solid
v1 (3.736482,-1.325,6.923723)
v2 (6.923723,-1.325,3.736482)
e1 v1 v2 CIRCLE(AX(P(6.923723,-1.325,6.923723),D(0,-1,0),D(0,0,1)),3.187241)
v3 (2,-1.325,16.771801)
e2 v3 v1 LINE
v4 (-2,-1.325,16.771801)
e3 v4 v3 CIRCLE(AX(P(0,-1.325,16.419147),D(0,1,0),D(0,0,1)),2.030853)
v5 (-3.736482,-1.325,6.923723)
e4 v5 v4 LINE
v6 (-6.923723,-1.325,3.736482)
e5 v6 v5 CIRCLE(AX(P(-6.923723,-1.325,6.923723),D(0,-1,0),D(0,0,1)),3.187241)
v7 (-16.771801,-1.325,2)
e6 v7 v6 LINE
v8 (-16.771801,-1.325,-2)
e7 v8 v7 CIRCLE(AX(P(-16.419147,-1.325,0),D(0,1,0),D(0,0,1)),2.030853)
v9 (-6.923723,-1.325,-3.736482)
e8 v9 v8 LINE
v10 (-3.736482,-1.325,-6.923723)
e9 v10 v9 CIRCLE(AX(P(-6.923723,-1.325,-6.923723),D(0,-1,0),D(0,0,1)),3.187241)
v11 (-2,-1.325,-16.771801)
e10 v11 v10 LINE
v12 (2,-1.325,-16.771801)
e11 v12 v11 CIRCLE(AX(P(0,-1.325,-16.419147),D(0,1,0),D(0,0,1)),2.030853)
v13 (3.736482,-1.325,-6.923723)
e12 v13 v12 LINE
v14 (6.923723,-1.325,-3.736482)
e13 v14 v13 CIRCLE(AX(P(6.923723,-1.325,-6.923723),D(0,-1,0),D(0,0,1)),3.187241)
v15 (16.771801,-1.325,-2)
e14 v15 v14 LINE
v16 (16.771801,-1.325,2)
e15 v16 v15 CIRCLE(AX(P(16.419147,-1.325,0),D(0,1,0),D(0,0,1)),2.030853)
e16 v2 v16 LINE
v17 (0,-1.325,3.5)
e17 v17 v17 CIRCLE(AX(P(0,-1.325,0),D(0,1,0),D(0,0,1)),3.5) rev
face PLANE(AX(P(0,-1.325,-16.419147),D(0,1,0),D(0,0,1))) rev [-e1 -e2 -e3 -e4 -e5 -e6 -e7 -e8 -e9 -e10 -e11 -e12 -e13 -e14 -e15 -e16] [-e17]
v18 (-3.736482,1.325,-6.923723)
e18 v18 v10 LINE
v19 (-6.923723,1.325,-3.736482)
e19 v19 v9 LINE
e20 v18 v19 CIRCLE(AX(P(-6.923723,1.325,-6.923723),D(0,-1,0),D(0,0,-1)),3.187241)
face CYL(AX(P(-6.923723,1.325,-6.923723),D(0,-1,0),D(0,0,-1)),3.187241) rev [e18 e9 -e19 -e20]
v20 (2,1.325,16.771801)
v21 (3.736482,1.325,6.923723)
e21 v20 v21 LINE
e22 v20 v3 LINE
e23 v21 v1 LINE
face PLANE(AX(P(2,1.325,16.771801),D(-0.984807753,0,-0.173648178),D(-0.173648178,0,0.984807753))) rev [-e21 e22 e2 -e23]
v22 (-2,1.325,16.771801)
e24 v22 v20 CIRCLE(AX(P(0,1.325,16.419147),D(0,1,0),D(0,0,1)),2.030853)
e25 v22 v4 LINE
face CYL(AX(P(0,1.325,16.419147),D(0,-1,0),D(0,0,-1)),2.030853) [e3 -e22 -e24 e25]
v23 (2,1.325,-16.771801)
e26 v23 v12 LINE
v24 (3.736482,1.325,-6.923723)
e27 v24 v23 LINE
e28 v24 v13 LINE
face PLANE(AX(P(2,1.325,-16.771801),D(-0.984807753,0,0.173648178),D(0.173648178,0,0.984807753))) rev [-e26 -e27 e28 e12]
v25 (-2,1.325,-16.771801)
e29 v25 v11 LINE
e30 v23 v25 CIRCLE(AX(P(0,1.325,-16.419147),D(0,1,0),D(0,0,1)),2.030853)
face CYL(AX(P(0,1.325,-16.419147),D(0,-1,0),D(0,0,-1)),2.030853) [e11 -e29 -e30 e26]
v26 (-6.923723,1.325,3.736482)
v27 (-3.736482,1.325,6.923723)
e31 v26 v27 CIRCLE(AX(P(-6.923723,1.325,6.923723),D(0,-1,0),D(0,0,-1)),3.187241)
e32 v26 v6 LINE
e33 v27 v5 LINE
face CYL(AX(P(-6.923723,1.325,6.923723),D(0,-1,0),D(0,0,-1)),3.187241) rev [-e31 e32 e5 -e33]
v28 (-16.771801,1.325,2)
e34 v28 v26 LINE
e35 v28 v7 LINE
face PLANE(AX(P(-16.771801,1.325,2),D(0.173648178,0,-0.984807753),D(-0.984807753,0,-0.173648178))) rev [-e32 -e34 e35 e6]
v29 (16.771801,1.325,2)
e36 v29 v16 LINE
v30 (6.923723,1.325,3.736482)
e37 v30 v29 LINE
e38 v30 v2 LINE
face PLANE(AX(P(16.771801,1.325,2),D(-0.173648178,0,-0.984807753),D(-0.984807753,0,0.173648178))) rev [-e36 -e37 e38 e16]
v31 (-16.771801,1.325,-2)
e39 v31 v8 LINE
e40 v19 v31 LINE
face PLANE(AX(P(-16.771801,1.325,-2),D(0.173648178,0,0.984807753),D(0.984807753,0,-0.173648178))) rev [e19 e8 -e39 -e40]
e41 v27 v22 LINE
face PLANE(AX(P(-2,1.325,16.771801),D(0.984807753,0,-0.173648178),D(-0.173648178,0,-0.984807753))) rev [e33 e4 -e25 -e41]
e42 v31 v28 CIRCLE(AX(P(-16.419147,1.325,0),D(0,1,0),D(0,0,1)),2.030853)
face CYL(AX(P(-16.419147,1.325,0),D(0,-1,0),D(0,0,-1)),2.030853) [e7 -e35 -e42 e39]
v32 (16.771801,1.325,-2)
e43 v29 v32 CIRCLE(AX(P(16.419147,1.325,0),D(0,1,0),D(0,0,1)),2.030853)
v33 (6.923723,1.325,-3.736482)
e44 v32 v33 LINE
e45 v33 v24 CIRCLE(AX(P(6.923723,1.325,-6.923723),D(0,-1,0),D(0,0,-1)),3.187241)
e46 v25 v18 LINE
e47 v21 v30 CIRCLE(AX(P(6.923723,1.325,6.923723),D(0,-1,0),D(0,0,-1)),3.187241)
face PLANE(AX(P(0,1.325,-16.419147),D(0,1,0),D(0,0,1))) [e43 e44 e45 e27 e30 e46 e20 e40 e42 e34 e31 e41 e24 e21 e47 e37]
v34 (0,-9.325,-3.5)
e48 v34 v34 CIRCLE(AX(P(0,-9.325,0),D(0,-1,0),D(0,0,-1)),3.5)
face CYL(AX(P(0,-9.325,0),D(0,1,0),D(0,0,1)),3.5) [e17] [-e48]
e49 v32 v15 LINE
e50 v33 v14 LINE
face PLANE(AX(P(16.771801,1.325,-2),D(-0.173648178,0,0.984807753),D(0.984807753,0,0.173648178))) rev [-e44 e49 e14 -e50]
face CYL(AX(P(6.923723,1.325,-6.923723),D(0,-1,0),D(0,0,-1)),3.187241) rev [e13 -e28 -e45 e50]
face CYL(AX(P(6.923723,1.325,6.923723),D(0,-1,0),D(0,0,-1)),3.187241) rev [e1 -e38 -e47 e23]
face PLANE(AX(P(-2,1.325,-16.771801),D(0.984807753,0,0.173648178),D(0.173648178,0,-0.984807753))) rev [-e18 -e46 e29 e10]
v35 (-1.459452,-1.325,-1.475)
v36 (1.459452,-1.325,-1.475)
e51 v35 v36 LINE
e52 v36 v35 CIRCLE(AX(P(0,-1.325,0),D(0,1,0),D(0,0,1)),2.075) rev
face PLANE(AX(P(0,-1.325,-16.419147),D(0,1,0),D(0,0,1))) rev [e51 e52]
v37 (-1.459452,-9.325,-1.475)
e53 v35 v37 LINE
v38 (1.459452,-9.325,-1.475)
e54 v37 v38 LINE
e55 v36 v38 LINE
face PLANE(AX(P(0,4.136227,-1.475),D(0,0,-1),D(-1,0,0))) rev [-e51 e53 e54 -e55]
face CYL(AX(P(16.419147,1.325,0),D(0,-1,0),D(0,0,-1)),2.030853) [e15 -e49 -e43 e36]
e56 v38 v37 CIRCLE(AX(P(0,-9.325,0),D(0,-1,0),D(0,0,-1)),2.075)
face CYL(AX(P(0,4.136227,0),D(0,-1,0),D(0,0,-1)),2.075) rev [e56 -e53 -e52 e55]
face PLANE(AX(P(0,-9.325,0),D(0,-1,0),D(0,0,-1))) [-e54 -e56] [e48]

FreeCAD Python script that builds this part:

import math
import FreeCAD as App
import Part
import Sketcher
Q = App.Units.Quantity

doc = App.newDocument("Part")
body = doc.addObject("PartDesign::Body", "Body")

# Sketch on XZ plane
sketch1 = doc.addObject("Sketcher::SketchObject", "Sketch")
body.addObject(sketch1)
sketch1.AttachmentSupport = (doc.XZ_Plane, [""])
sketch1.MapMode = "FlatFace"
sketch1.addGeometry([
    Part.LineSegment(App.Vector(3.736482, -6.923723, 0), App.Vector(2, -16.771801, 0)),  # 0
    Part.ArcOfCircle(Part.Circle(App.Vector(0, -16.419147, 0), App.Vector(0, 0, 1), 2.030853), math.radians(-170), math.radians(-10)),  # 1
    Part.LineSegment(App.Vector(-2, -16.771801, 0), App.Vector(-3.736482, -6.923723, 0)),  # 2
    Part.ArcOfCircle(Part.Circle(App.Vector(-6.923723, -6.923723, 0), App.Vector(0, 0, 1), 3.187241), math.radians(0), math.radians(45)),  # 3
    Part.ArcOfCircle(Part.Circle(App.Vector(-6.923723, -6.923723, 0), App.Vector(0, 0, 1), 3.187241), math.radians(45), math.radians(90)),  # 4
    Part.LineSegment(App.Vector(-6.923723, -3.736482, 0), App.Vector(-16.771801, -2, 0)),  # 5
    Part.ArcOfCircle(Part.Circle(App.Vector(-16.419147, 0, 0), App.Vector(0, 0, 1), 2.030853), math.radians(100), math.radians(260)),  # 6
    Part.LineSegment(App.Vector(-16.771801, 2, 0), App.Vector(-6.923723, 3.736482, 0)),  # 7
    Part.ArcOfCircle(Part.Circle(App.Vector(-6.923723, 6.923723, 0), App.Vector(0, 0, 1), 3.187241), math.radians(-90), math.radians(-45)),  # 8
    Part.ArcOfCircle(Part.Circle(App.Vector(-6.923723, 6.923723, 0), App.Vector(0, 0, 1), 3.187241), math.radians(-45), math.radians(0)),  # 9
    Part.LineSegment(App.Vector(-3.736482, 6.923723, 0), App.Vector(-2, 16.771801, 0)),  # 10
    Part.ArcOfCircle(Part.Circle(App.Vector(0, 16.419147, 0), App.Vector(0, 0, 1), 2.030853), math.radians(10), math.radians(170)),  # 11
    Part.LineSegment(App.Vector(2, 16.771801, 0), App.Vector(3.736482, 6.923723, 0)),  # 12
    Part.ArcOfCircle(Part.Circle(App.Vector(6.923723, 6.923723, 0), App.Vector(0, 0, 1), 3.187241), math.radians(180), math.radians(225)),  # 13
    Part.ArcOfCircle(Part.Circle(App.Vector(6.923723, 6.923723, 0), App.Vector(0, 0, 1), 3.187241), math.radians(-135), math.radians(-90)),  # 14
    Part.LineSegment(App.Vector(6.923723, 3.736482, 0), App.Vector(16.771801, 2, 0)),  # 15
    Part.ArcOfCircle(Part.Circle(App.Vector(16.419147, 0, 0), App.Vector(0, 0, 1), 2.030853), math.radians(-80), math.radians(80)),  # 16
    Part.LineSegment(App.Vector(16.771801, -2, 0), App.Vector(6.923723, -3.736482, 0)),  # 17
    Part.ArcOfCircle(Part.Circle(App.Vector(6.923723, -6.923723, 0), App.Vector(0, 0, 1), 3.187241), math.radians(90), math.radians(135)),  # 18
    Part.ArcOfCircle(Part.Circle(App.Vector(6.923723, -6.923723, 0), App.Vector(0, 0, 1), 3.187241), math.radians(135), math.radians(180)),  # 19
], False)
sketch1.addConstraint([
    Sketcher.Constraint("Tangent", 0, 2, 1, 2),
    Sketcher.Constraint("Tangent", 1, 1, 2, 1),
    Sketcher.Constraint("Coincident", 2, 2, 3, 1),
    Sketcher.Constraint("Tangent", 3, 2, 4, 1),
    Sketcher.Constraint("Coincident", 4, 2, 5, 1),
    Sketcher.Constraint("Tangent", 5, 2, 6, 2),
    Sketcher.Constraint("Tangent", 6, 1, 7, 1),
    Sketcher.Constraint("Coincident", 7, 2, 8, 1),
    Sketcher.Constraint("Tangent", 8, 2, 9, 1),
    Sketcher.Constraint("Coincident", 9, 2, 10, 1),
    Sketcher.Constraint("Tangent", 10, 2, 11, 2),
    Sketcher.Constraint("Tangent", 11, 1, 12, 1),
    Sketcher.Constraint("Coincident", 12, 2, 13, 1),
    Sketcher.Constraint("Tangent", 13, 2, 14, 1),
    Sketcher.Constraint("Coincident", 14, 2, 15, 1),
    Sketcher.Constraint("Tangent", 15, 2, 16, 2),
    Sketcher.Constraint("Tangent", 16, 1, 17, 1),
    Sketcher.Constraint("Coincident", 17, 2, 18, 1),
    Sketcher.Constraint("Tangent", 18, 2, 19, 1),
    Sketcher.Constraint("Coincident", 19, 2, 0, 1),
    Sketcher.Constraint("Equal", 3, 4),
    Sketcher.Constraint("Equal", 1, 6),
    Sketcher.Constraint("Equal", 4, 8),
    Sketcher.Constraint("Equal", 8, 9),
    Sketcher.Constraint("Equal", 6, 11),
    Sketcher.Constraint("Equal", 9, 13),
    Sketcher.Constraint("Equal", 13, 14),
    Sketcher.Constraint("Equal", 11, 16),
    Sketcher.Constraint("Equal", 14, 18),
    Sketcher.Constraint("Equal", 18, 19),
    Sketcher.Constraint("Symmetric", 1, 3, 11, 3, -1, 1),
    Sketcher.Constraint("Symmetric", 3, 3, 13, 3, -1, 1),
    Sketcher.Constraint("Symmetric", 6, 3, 16, 3, -1, 1),
    Sketcher.Constraint("Symmetric", 8, 3, 18, 3, -1, 1),
    Sketcher.Constraint("Symmetric", 8, 3, 13, 3, -2),
    Sketcher.Constraint("Symmetric", 0, 2, 1, 1, -2),
    Sketcher.Constraint("Symmetric", 6, 1, 15, 2, -2),
    Sketcher.Constraint("Perpendicular", 0, 5),
    Sketcher.Constraint("Perpendicular", 2, 7),
    Sketcher.Constraint("Perpendicular", 5, 10),
    Sketcher.Constraint("Perpendicular", 7, 12),
    Sketcher.Constraint("Perpendicular", 12, 17),
    Sketcher.Constraint("Horizontal", 19, 3, 2, 2),
    Sketcher.Constraint("Horizontal", 8, 2, 13, 2),
    Sketcher.Constraint("Horizontal", 3, 2, 18, 2),
    Sketcher.Constraint("Vertical", 9, 3, 4, 2),
    Sketcher.Constraint("Vertical", 3, 2, 8, 2),
    Sketcher.Constraint("Equal", 2, 5),
    Sketcher.Constraint("Angle", 0, Q("-100 deg")),
    Sketcher.Constraint("Distance", 0, Q("10 mm")),
    Sketcher.Constraint("DistanceX", -1, 1, 0, 2, Q("2 mm")),
    Sketcher.Constraint("Radius", 3, Q("3.187241 mm")),
    Sketcher.Constraint("DistanceX", 3, 2, 2, 2, Q("0.933521 mm")),
])
pad1 = doc.addObject("PartDesign::Pad", "Pad")
body.addObject(pad1)
pad1.Profile = sketch1
pad1.Length = 2.65
pad1.Midplane = True

# Sketch on XZ plane
sketch2 = doc.addObject("Sketcher::SketchObject", "Sketch001")
body.addObject(sketch2)
sketch2.AttachmentSupport = (doc.XZ_Plane, [""])
sketch2.MapMode = "FlatFace"
sketch2.AttachmentOffset = App.Placement(App.Vector(0, 0, 1.325), App.Rotation())
sketch2.addGeometry(Part.Circle(App.Vector(0, 0, 0), App.Vector(0, 0, 1), 3.5), False)
sketch2.addConstraint([
    Sketcher.Constraint("Coincident", 0, 3, -1, 1),
    Sketcher.Constraint("Diameter", 0, Q("7 mm")),
])
pad2 = doc.addObject("PartDesign::Pad", "Pad001")
body.addObject(pad2)
pad2.Profile = sketch2
pad2.Length = 8

# Sketch on XZ plane
sketch3 = doc.addObject("Sketcher::SketchObject", "Sketch002")
body.addObject(sketch3)
sketch3.AttachmentSupport = (doc.XZ_Plane, [""])
sketch3.MapMode = "FlatFace"
sketch3.AttachmentOffset = App.Placement(App.Vector(0, 0, 9.325), App.Rotation())
sketch3.addGeometry([
    Part.ArcOfCircle(Part.Circle(App.Vector(0, 0, 0), App.Vector(0, 0, 1), 2.075), math.radians(0), math.radians(225.303576)),
    Part.LineSegment(App.Vector(-1.459452, -1.475, 0), App.Vector(1.459452, -1.475, 0)),
    Part.ArcOfCircle(Part.Circle(App.Vector(0, 0, 0), App.Vector(0, 0, 1), 2.075), math.radians(-45.303576), math.radians(0)),
], False)
sketch3.addConstraint([
    Sketcher.Constraint("Coincident", 0, 2, 1, 1),
    Sketcher.Constraint("Coincident", 1, 2, 2, 1),
    Sketcher.Constraint("Tangent", 2, 2, 0, 1),
    Sketcher.Constraint("Horizontal", 1),
    Sketcher.Constraint("Coincident", 0, 3, -1, 1),
    Sketcher.Constraint("Equal", 0, 2),
    Sketcher.Constraint("PointOnObject", 2, 2, -1),
    Sketcher.Constraint("Radius", 0, Q("2.075 mm")),
    Sketcher.Constraint("DistanceY", 0, 2, -1, 1, Q("1.475 mm")),
])
pocket1 = doc.addObject("PartDesign::Pocket", "Pocket")
body.addObject(pocket1)
pocket1.Profile = sketch3
pocket1.Length = 8

doc.recompute()
